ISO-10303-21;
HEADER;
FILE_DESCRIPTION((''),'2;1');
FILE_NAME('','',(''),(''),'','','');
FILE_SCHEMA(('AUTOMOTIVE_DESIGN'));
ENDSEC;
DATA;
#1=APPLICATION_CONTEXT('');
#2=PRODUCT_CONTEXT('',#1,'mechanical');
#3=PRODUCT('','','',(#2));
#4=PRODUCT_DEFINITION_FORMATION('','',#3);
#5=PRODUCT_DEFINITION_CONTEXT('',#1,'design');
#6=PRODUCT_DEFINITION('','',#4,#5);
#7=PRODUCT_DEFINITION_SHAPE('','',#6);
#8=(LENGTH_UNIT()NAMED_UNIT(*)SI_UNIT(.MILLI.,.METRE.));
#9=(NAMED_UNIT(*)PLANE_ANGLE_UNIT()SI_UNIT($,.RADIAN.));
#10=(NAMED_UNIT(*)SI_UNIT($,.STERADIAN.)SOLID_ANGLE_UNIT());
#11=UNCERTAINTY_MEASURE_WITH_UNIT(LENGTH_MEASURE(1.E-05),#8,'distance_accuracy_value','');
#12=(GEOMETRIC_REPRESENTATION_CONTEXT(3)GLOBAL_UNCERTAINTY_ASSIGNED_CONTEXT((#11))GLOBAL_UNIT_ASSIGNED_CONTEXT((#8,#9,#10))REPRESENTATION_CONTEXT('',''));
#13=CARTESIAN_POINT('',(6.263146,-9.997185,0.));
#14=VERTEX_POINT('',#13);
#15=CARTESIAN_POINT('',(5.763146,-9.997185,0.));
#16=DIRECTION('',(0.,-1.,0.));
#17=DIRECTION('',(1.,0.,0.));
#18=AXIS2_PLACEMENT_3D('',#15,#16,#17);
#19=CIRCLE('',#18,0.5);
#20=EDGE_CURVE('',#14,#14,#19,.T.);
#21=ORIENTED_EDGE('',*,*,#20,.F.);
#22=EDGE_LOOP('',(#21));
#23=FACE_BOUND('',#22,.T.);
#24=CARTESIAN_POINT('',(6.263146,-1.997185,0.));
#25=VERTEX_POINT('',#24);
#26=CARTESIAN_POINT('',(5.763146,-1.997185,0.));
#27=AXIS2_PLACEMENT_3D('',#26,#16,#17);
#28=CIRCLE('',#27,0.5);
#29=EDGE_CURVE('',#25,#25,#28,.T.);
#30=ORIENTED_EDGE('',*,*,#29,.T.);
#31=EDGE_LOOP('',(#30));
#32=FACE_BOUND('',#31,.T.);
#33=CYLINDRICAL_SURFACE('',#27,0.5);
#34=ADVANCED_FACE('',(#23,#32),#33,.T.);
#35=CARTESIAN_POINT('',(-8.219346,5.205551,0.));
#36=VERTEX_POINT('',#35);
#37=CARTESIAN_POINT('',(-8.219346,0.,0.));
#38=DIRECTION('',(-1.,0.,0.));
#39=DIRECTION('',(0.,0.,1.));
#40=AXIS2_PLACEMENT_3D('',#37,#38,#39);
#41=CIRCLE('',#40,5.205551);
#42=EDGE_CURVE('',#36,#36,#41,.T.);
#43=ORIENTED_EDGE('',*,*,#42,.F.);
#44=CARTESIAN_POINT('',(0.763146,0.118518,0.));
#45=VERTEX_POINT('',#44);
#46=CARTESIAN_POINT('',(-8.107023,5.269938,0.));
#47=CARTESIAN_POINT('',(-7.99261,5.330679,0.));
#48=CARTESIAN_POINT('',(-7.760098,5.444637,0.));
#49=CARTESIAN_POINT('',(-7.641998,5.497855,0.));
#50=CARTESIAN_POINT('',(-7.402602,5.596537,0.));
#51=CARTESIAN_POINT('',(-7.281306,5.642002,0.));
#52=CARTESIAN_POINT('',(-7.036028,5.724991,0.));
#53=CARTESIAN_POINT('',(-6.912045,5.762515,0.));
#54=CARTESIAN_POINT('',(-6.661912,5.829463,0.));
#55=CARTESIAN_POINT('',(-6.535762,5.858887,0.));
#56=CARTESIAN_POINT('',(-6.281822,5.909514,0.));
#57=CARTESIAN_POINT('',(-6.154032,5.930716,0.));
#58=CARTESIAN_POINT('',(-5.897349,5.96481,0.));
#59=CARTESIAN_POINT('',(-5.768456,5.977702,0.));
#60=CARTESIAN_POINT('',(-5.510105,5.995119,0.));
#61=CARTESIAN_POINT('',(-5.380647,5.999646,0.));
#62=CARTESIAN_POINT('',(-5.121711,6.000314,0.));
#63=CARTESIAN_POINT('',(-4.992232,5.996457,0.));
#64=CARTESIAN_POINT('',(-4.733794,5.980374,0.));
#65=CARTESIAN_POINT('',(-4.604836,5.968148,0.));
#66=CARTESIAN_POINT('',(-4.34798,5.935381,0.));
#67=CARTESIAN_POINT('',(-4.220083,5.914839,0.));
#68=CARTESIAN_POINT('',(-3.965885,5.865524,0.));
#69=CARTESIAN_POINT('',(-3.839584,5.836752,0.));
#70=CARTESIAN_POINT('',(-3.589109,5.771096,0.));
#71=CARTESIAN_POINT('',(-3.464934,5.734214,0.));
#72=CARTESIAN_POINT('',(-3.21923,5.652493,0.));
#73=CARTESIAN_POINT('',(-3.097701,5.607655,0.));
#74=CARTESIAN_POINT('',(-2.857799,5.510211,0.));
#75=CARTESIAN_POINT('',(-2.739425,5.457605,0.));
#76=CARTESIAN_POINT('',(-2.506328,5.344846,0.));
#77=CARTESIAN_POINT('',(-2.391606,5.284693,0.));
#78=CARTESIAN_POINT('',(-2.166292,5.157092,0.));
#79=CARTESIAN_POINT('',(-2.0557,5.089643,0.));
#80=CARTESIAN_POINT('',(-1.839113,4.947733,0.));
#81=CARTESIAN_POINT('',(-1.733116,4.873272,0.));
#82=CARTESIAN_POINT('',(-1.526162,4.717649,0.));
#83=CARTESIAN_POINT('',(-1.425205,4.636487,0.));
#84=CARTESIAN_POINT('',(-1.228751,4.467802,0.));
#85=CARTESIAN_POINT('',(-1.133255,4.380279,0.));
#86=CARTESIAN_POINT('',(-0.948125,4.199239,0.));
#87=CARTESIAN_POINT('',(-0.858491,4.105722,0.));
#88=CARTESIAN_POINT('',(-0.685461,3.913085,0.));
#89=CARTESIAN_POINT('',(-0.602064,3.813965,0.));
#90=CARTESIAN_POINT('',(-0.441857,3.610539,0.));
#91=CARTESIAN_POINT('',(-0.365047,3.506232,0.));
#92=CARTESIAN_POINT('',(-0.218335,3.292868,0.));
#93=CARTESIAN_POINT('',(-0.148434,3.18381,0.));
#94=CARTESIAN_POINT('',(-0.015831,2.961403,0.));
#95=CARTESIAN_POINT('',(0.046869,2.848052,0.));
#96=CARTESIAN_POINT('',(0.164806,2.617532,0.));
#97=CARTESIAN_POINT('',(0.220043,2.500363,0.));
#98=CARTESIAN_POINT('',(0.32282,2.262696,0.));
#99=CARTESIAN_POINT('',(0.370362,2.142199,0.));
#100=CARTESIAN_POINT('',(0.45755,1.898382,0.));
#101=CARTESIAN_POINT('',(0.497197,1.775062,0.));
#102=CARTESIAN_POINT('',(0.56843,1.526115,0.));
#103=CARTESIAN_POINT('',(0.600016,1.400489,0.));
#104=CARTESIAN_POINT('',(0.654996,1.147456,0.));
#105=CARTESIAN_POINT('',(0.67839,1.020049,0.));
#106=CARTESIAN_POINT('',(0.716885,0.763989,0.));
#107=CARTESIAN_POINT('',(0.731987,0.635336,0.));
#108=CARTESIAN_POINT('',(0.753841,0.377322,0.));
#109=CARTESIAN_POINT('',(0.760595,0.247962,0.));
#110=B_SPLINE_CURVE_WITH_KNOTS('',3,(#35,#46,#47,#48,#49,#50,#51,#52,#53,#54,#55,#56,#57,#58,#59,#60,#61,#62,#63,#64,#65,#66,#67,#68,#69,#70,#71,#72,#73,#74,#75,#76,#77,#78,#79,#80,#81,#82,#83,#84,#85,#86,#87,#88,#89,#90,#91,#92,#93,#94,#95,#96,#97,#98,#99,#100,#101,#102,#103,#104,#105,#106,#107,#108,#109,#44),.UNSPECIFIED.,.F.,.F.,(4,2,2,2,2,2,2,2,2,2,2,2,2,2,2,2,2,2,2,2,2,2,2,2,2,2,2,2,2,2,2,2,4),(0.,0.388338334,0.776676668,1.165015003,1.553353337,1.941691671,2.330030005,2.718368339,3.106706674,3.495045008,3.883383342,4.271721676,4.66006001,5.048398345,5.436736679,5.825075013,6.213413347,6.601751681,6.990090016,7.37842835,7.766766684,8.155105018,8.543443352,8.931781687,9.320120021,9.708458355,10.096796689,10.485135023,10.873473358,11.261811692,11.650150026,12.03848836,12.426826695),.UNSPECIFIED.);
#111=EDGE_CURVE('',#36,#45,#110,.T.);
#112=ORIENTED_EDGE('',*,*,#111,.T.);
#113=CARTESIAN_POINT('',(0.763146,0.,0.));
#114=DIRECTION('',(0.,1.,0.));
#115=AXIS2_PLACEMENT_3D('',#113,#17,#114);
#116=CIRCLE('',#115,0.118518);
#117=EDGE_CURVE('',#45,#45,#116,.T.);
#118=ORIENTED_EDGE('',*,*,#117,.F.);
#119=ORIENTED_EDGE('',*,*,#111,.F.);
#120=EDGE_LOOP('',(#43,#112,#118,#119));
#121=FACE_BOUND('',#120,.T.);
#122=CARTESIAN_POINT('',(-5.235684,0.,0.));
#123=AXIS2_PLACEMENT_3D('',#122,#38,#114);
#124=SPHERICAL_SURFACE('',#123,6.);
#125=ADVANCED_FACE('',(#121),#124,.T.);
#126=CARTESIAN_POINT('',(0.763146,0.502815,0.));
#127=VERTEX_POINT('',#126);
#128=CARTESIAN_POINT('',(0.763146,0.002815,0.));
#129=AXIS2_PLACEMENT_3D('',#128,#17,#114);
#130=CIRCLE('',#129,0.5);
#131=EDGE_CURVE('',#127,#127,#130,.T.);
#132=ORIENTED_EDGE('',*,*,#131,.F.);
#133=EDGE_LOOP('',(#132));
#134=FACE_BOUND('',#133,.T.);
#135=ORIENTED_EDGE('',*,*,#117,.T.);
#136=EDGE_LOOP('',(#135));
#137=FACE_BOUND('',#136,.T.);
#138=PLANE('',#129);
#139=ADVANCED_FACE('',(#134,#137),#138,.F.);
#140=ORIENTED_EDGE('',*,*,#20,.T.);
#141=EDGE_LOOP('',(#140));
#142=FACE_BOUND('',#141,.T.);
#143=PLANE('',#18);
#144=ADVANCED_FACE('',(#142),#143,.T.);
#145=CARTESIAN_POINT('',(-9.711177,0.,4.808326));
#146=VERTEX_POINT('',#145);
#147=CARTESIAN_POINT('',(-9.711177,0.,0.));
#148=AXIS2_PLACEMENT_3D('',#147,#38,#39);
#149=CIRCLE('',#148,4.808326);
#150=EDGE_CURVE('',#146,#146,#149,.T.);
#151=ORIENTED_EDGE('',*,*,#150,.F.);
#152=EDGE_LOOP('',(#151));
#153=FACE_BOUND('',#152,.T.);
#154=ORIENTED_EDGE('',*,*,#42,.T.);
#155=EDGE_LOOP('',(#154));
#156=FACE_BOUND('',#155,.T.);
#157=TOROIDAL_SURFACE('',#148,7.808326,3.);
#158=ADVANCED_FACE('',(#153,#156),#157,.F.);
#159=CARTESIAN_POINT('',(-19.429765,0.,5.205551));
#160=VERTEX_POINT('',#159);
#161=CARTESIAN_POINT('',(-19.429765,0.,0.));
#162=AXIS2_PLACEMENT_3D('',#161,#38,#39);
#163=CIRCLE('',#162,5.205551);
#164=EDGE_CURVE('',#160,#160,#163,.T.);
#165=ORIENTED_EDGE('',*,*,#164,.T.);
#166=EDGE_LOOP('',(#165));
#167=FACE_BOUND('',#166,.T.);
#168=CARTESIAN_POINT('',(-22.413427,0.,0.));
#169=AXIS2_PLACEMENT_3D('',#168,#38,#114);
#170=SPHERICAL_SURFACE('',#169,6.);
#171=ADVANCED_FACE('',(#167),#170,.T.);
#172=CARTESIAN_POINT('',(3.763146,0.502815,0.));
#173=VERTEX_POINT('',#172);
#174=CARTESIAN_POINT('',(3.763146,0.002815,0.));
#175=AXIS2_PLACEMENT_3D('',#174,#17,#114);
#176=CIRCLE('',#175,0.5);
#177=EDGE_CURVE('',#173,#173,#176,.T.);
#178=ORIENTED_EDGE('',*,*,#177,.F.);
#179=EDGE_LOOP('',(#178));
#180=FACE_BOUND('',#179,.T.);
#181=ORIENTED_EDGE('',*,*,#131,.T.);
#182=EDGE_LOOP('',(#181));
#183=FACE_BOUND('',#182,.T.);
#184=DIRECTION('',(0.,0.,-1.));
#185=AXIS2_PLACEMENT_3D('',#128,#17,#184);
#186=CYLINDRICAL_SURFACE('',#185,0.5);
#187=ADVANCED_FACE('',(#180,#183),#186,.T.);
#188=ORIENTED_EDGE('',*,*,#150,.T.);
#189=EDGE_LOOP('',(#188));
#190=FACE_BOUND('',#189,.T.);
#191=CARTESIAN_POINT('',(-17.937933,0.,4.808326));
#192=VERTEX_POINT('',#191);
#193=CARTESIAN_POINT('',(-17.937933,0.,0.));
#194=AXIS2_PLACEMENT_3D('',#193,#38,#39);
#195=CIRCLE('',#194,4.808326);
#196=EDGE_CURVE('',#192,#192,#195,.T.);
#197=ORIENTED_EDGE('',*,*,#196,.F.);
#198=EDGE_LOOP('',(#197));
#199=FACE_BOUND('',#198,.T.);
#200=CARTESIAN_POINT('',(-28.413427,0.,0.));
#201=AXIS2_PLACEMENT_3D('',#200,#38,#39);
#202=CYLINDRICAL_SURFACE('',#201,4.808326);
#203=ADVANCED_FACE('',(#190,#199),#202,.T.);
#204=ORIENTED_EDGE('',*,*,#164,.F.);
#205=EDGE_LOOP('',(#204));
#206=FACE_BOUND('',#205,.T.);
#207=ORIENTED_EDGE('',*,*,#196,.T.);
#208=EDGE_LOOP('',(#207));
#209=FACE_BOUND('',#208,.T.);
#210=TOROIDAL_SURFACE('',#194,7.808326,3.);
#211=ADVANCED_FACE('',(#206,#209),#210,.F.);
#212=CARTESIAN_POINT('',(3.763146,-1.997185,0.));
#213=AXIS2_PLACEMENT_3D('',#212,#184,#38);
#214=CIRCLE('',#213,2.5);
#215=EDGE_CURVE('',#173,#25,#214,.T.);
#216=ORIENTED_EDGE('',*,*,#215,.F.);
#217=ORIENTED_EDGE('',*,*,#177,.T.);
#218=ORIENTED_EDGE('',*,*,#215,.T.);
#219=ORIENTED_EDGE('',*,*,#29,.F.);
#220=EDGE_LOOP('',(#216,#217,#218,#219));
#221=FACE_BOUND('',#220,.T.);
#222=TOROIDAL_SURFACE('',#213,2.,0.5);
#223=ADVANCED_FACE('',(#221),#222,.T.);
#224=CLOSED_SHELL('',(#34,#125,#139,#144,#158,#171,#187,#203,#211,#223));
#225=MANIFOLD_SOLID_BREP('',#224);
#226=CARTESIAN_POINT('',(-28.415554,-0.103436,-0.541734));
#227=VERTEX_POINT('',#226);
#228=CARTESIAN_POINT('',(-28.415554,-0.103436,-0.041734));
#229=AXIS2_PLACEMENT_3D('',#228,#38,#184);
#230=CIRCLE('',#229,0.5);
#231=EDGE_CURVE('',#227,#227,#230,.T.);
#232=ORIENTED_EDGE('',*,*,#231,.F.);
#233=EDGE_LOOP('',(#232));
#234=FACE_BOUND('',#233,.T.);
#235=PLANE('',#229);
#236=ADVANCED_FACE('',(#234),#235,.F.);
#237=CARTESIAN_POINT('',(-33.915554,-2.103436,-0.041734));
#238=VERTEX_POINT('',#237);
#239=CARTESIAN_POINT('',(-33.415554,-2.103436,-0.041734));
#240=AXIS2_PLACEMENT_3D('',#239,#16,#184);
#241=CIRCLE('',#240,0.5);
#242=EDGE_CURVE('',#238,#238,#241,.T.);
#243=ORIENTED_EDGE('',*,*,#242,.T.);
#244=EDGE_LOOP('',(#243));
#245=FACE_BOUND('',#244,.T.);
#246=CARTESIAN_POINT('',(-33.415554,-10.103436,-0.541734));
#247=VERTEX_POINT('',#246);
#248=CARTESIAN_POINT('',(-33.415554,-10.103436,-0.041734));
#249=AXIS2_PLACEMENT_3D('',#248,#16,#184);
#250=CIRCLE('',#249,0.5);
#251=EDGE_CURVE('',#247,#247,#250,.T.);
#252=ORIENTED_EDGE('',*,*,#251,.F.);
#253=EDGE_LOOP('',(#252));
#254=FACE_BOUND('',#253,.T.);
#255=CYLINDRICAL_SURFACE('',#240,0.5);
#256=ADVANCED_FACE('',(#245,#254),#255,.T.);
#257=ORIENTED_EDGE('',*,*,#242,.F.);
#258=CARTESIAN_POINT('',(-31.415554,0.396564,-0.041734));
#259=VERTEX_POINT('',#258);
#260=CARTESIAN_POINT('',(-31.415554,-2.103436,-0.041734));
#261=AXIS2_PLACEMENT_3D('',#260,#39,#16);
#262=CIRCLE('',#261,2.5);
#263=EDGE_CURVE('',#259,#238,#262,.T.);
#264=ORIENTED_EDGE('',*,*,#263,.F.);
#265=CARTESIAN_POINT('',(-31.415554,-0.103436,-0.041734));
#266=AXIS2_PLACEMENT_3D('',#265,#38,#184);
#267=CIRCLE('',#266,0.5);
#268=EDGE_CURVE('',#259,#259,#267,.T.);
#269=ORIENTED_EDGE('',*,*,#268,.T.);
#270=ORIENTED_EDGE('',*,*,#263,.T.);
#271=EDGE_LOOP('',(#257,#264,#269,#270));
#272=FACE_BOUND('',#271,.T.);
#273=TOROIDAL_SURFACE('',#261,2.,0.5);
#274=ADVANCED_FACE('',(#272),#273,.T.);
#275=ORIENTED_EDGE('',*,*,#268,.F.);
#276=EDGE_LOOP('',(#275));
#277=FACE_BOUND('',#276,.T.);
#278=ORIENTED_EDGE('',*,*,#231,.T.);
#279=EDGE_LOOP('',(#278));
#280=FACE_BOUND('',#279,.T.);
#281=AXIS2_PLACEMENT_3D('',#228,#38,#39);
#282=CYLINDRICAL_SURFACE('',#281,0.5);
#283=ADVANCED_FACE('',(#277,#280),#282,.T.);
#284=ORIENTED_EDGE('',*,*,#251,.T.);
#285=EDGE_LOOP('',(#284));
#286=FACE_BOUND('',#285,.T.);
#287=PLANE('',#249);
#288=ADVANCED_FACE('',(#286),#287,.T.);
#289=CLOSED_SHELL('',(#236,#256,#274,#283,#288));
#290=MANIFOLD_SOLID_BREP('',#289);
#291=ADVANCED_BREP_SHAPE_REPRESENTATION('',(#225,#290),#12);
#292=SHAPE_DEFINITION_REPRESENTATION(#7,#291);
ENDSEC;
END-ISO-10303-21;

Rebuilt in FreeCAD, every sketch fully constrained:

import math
import FreeCAD as App
import Part
import Sketcher

V = App.Vector

doc = App.newDocument("Part")
body = doc.addObject("PartDesign::Body", "Body")

sketch1 = body.newObject("Sketcher::SketchObject", "Sketch")
sketch1.AttachmentSupport = (doc.getObject("XY_Plane"), [""])
sketch1.MapMode = "FlatFace"
sketch1.addGeometry([
    Part.LineSegment(V(-9.7, 4.8, 0), V(-17.9, 4.8, 0)),
    Part.ArcOfCircle(Part.Circle(V(-17.9, 7.8, 0), V(0, 0, 1), 3), math.radians(-120), math.radians(-90)),
    Part.ArcOfCircle(Part.Circle(V(-22.4, 0, 0), V(0, 0, 1), 6), math.radians(60), math.radians(180)),
    Part.LineSegment(V(-28.4, 0, 0), V(0.8, 0, 0)),
    Part.ArcOfCircle(Part.Circle(V(-5.2, 0, 0), V(0, 0, 1), 6), math.radians(0), math.radians(120)),
    Part.ArcOfCircle(Part.Circle(V(-9.7, 7.8, 0), V(0, 0, 1), 3), math.radians(-90), math.radians(-60)),
], False)
sketch1.addConstraint([
    Sketcher.Constraint("Tangent", 0, 2, 1, 2),
    Sketcher.Constraint("Tangent", 1, 1, 2, 1),
    Sketcher.Constraint("Coincident", 2, 2, 3, 1),
    Sketcher.Constraint("Coincident", 3, 2, 4, 1),
    Sketcher.Constraint("Tangent", 4, 2, 5, 2),
    Sketcher.Constraint("Tangent", 5, 1, 0, 1),
    Sketcher.Constraint("Horizontal", 0),
    Sketcher.Constraint("Horizontal", 3),
    Sketcher.Constraint("Equal", 2, 4),
    Sketcher.Constraint("Equal", 1, 5),
    Sketcher.Constraint("PointOnObject", 2, 3, -1),
    Sketcher.Constraint("PointOnObject", 4, 3, -1),
    Sketcher.Constraint("PointOnObject", 2, 2, -1),
    Sketcher.Constraint("Radius", 1, 3.0),
    Sketcher.Constraint("Radius", 2, 6.0),
    Sketcher.Constraint("DistanceX", 0, 2, 0, 1, 8.226756),
    Sketcher.Constraint("DistanceX", 3, 1, 3, 2, 29.177743),
    Sketcher.Constraint("DistanceX", 1, 3, -1, 1, 17.937933),
])
revolution = body.newObject("PartDesign::Revolution", "Revolution")
revolution.Profile = sketch1
revolution.ReferenceAxis = (sketch1, ["H_Axis"])
revolution.Angle = 360

sketch2 = body.newObject("Sketcher::SketchObject", "Sketch001")
sketch2.AttachmentSupport = (doc.getObject("XZ_Plane"), [""])
sketch2.MapMode = "FlatFace"
sketch2.AttachmentOffset = App.Placement(V(0, 0, 9.997185), App.Rotation())
sketch2.addGeometry(Part.Circle(V(5.8, 0, 0), V(0, 0, 1), 0.5), False)
sketch2.addConstraint([
    Sketcher.Constraint("PointOnObject", 0, 3, -1),
    Sketcher.Constraint("Diameter", 0, 1.0),
    Sketcher.Constraint("DistanceX", -1, 1, 0, 3, 5.763146),
])

sketch3 = body.newObject("Sketcher::SketchObject", "Sketch002")
sketch3.AttachmentSupport = (doc.getObject("XY_Plane"), [""])
sketch3.MapMode = "FlatFace"
sketch3.addGeometry([
    Part.LineSegment(V(0.8, 0, 0), V(3.8, 0, 0)),
    Part.ArcOfCircle(Part.Circle(V(3.8, -2, 0), V(0, 0, 1), 2), math.radians(0), math.radians(90)),
    Part.LineSegment(V(5.8, -2, 0), V(5.8, -10, 0)),
], False)
sketch3.addConstraint([
    Sketcher.Constraint("Tangent", 0, 2, 1, 2),
    Sketcher.Constraint("Tangent", 1, 1, 2, 1),
    Sketcher.Constraint("Horizontal", 0),
    Sketcher.Constraint("Vertical", 2),
    Sketcher.Constraint("Radius", 1, 2.0),
    Sketcher.Constraint("DistanceX", 0, 1, 0, 2, 3.0),
    Sketcher.Constraint("DistanceY", 2, 2, 2, 1, 8.0),
    Sketcher.Constraint("DistanceX", -1, 1, 1, 3, 3.763146),
    Sketcher.Constraint("DistanceY", 1, 3, -1, 1, 1.997185),
])
doc.recompute()

additivepipe = body.newObject("PartDesign::AdditivePipe", "AdditivePipe")
additivepipe.Profile = sketch2
additivepipe.Spine = (sketch3, ["Edge1", "Edge2", "Edge3"])
body2 = doc.addObject("PartDesign::Body", "Body001")

sketch4 = body2.newObject("Sketcher::SketchObject", "Sketch003")
sketch4.AttachmentSupport = (doc.getObject("XZ_Plane001"), [""])
sketch4.MapMode = "FlatFace"
sketch4.AttachmentOffset = App.Placement(V(0, 0, 10.103436), App.Rotation())
sketch4.addGeometry(Part.Circle(V(-33.4, 0, 0), V(0, 0, 1), 0.5), False)
sketch4.addConstraint([
    Sketcher.Constraint("Diameter", 0, 1.0),
    Sketcher.Constraint("DistanceX", 0, 3, -1, 1, 33.415554),
    Sketcher.Constraint("DistanceY", 0, 3, -1, 1, 0.041734),
])

sketch5 = body2.newObject("Sketcher::SketchObject", "Sketch004")
sketch5.AttachmentSupport = (doc.getObject("XY_Plane001"), [""])
sketch5.MapMode = "FlatFace"
sketch5.AttachmentOffset = App.Placement(V(0, 0, -0.041734), App.Rotation())
sketch5.addGeometry([
    Part.LineSegment(V(-28.4, -0.1, 0), V(-31.4, -0.1, 0)),
    Part.ArcOfCircle(Part.Circle(V(-31.4, -2.1, 0), V(0, 0, 1), 2), math.radians(90), math.radians(180)),
    Part.LineSegment(V(-33.4, -2.1, 0), V(-33.4, -10.1, 0)),
], False)
sketch5.addConstraint([
    Sketcher.Constraint("Tangent", 0, 2, 1, 1),
    Sketcher.Constraint("Tangent", 1, 2, 2, 1),
    Sketcher.Constraint("Horizontal", 0),
    Sketcher.Constraint("Vertical", 2),
    Sketcher.Constraint("Radius", 1, 2.0),
    Sketcher.Constraint("DistanceX", 0, 2, 0, 1, 3.0),
    Sketcher.Constraint("DistanceY", 2, 2, 2, 1, 8.0),
    Sketcher.Constraint("DistanceX", 1, 3, -1, 1, 31.415554),
    Sketcher.Constraint("DistanceY", 1, 3, -1, 1, 2.103436),
])
doc.recompute()

additivepipe2 = body2.newObject("PartDesign::AdditivePipe", "AdditivePipe001")
additivepipe2.Profile = sketch4
additivepipe2.Spine = (sketch5, ["Edge1", "Edge2", "Edge3"])

doc.recompute()
